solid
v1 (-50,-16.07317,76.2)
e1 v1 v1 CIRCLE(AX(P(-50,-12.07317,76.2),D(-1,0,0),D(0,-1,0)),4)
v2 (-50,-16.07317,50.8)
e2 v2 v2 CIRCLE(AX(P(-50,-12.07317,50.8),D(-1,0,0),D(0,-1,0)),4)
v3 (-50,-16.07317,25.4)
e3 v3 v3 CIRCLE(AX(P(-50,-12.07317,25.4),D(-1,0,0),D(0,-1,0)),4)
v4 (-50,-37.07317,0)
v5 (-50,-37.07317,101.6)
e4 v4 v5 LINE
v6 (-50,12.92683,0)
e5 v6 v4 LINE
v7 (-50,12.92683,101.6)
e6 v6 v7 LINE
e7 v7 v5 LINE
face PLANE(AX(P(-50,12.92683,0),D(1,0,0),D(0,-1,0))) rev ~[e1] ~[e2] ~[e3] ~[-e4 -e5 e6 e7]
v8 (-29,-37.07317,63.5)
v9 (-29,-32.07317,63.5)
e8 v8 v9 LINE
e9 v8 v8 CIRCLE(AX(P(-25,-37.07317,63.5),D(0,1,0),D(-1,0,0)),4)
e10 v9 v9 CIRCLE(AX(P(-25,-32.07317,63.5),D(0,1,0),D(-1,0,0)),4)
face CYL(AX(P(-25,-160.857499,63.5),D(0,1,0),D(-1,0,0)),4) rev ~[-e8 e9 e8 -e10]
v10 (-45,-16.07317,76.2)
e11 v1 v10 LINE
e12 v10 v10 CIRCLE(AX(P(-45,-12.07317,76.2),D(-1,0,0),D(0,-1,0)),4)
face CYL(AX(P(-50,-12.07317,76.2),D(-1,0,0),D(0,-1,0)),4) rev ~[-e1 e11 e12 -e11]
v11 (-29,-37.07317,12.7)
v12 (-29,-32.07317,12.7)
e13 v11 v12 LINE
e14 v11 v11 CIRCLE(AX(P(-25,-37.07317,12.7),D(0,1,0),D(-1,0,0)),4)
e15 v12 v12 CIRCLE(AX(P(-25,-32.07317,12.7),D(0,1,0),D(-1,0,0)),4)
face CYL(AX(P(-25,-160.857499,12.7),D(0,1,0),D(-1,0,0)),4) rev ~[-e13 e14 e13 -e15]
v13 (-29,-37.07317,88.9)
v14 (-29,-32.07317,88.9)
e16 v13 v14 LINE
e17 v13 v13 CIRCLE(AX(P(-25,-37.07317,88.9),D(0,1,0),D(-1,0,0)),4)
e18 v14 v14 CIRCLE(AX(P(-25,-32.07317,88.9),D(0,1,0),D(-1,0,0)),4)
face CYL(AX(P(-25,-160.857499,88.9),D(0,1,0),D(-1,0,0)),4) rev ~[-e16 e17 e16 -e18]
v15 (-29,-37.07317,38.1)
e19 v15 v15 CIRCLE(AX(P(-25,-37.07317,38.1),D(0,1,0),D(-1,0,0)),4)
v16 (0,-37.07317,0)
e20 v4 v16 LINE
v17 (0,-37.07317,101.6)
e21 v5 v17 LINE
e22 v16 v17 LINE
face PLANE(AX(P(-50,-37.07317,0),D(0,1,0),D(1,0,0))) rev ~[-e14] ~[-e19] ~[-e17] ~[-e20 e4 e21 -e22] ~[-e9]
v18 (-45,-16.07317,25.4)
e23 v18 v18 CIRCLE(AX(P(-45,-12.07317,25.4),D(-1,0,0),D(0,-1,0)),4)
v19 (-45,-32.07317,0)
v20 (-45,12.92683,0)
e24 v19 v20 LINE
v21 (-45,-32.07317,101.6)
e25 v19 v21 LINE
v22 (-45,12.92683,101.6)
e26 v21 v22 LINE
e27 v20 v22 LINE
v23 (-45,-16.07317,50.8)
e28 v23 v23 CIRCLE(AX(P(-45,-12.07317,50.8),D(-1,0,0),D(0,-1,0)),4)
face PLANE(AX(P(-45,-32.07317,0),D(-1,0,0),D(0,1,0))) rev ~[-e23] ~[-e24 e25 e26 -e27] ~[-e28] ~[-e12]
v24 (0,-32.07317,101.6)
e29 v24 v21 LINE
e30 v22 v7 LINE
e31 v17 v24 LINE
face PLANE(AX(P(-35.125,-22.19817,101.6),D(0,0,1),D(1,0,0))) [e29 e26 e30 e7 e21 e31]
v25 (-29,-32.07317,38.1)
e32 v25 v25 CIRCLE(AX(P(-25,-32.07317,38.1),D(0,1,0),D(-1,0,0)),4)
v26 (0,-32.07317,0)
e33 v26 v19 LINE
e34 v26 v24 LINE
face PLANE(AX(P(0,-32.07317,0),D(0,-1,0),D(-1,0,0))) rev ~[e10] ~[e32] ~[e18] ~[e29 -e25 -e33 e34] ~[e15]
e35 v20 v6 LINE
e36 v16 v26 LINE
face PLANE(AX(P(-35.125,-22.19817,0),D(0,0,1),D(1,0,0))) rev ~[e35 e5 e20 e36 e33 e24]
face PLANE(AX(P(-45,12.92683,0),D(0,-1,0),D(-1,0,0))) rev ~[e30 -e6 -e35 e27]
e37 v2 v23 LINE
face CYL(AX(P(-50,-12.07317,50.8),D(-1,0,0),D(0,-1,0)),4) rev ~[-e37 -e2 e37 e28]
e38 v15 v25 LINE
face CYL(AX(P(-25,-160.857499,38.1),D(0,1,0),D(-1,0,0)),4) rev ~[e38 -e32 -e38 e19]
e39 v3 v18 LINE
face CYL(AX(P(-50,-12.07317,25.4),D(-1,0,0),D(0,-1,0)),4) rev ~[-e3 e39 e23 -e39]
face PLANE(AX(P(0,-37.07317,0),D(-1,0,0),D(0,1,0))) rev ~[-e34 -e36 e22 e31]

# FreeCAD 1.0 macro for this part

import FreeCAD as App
import Part
import Sketcher
from FreeCAD import Vector
Q = App.Units.Quantity

doc = App.newDocument("Part")
body = doc.addObject("PartDesign::Body", "Body")

# Sketch on XY plane
sketch1 = body.newObject("Sketcher::SketchObject", "Sketch")
sketch1.AttachmentSupport = (doc.getObject("XY_Plane"), [""])
sketch1.MapMode = "FlatFace"
sketch1.addGeometry([
    Part.LineSegment(Vector(-45, 12.92683, 0), Vector(-50, 12.92683, 0)),  # 0
    Part.LineSegment(Vector(-50, 12.92683, 0), Vector(-50, -37.07317, 0)),  # 1
    Part.LineSegment(Vector(-50, -37.07317, 0), Vector(0, -37.07317, 0)),  # 2
    Part.LineSegment(Vector(0, -37.07317, 0), Vector(0, -32.07317, 0)),  # 3
    Part.LineSegment(Vector(0, -32.07317, 0), Vector(-45, -32.07317, 0)),  # 4
    Part.LineSegment(Vector(-45, -32.07317, 0), Vector(-45, 12.92683, 0)),  # 5
], False)
sketch1.addConstraint([
    Sketcher.Constraint("Coincident", 0, 2, 1, 1),
    Sketcher.Constraint("Coincident", 1, 2, 2, 1),
    Sketcher.Constraint("Coincident", 2, 2, 3, 1),
    Sketcher.Constraint("Coincident", 3, 2, 4, 1),
    Sketcher.Constraint("Coincident", 4, 2, 5, 1),
    Sketcher.Constraint("Coincident", 5, 2, 0, 1),
    Sketcher.Constraint("Horizontal", 0),
    Sketcher.Constraint("Vertical", 1),
    Sketcher.Constraint("Horizontal", 2),
    Sketcher.Constraint("Vertical", 3),
    Sketcher.Constraint("Horizontal", 4),
    Sketcher.Constraint("Vertical", 5),
    Sketcher.Constraint("PointOnObject", 2, 2, -2),
    Sketcher.Constraint("Equal", 2, 1),
    Sketcher.Constraint("Equal", 0, 3),
    Sketcher.Constraint("DistanceX", 0, 2, 0, 1, Q("5 mm")),
    Sketcher.Constraint("DistanceX", 2, 1, 2, 2, Q("50 mm")),
    Sketcher.Constraint("DistanceY", -1, 1, 0, 2, Q("12.92683 mm")),
])
pad1 = body.newObject("PartDesign::Pad", "Pad")
pad1.Profile = sketch1
pad1.Length = 101.6

# Sketch on YZ plane
sketch2 = body.newObject("Sketcher::SketchObject", "Sketch001")
sketch2.AttachmentSupport = (doc.getObject("YZ_Plane"), [""])
sketch2.MapMode = "FlatFace"
sketch2.AttachmentOffset = App.Placement(Vector(0, 0, -50), App.Rotation())
sketch2.addGeometry([
    Part.Circle(Vector(-12.07317, 76.2, 0), Vector(0, 0, 1), 4),
    Part.Circle(Vector(-12.07317, 50.8, 0), Vector(0, 0, 1), 4),
    Part.Circle(Vector(-12.07317, 25.4, 0), Vector(0, 0, 1), 4),
], False)
sketch2.addConstraint([
    Sketcher.Constraint("Equal", 0, 1),
    Sketcher.Constraint("Equal", 1, 2),
    Sketcher.Constraint("Vertical", 0, 3, 1, 3),
    Sketcher.Constraint("Vertical", 1, 3, 2, 3),
    Sketcher.Constraint("Diameter", 0, Q("8 mm")),
    Sketcher.Constraint("DistanceY", -1, 1, 0, 3, Q("76.2 mm")),
    Sketcher.Constraint("DistanceY", -1, 1, 1, 3, Q("50.8 mm")),
    Sketcher.Constraint("DistanceY", -1, 1, 2, 3, Q("25.4 mm")),
    Sketcher.Constraint("DistanceX", 0, 3, -1, 1, Q("12.07317 mm")),
])
pocket1 = body.newObject("PartDesign::Pocket", "Pocket")
pocket1.Profile = sketch2
pocket1.Length = 25
pocket1.Reversed = True

# Sketch on XZ plane
sketch3 = body.newObject("Sketcher::SketchObject", "Sketch002")
sketch3.AttachmentSupport = (doc.getObject("XZ_Plane"), [""])
sketch3.MapMode = "FlatFace"
sketch3.AttachmentOffset = App.Placement(Vector(0, 0, 37.07317), App.Rotation())
sketch3.addGeometry([
    Part.Circle(Vector(-25, 88.9, 0), Vector(0, 0, 1), 4),
    Part.Circle(Vector(-25, 63.5, 0), Vector(0, 0, 1), 4),
    Part.Circle(Vector(-25, 38.1, 0), Vector(0, 0, 1), 4),
    Part.Circle(Vector(-25, 12.7, 0), Vector(0, 0, 1), 4),
], False)
sketch3.addConstraint([
    Sketcher.Constraint("Equal", 0, 1),
    Sketcher.Constraint("Equal", 1, 2),
    Sketcher.Constraint("Equal", 2, 3),
    Sketcher.Constraint("Vertical", 0, 3, 1, 3),
    Sketcher.Constraint("Vertical", 1, 3, 2, 3),
    Sketcher.Constraint("Vertical", 2, 3, 3, 3),
    Sketcher.Constraint("Diameter", 0, Q("8 mm")),
    Sketcher.Constraint("DistanceX", 0, 3, -1, 1, Q("25 mm")),
    Sketcher.Constraint("DistanceY", -1, 1, 0, 3, Q("88.9 mm")),
    Sketcher.Constraint("DistanceY", -1, 1, 1, 3, Q("63.5 mm")),
    Sketcher.Constraint("DistanceY", -1, 1, 2, 3, Q("38.1 mm")),
    Sketcher.Constraint("DistanceY", -1, 1, 3, 3, Q("12.7 mm")),
])
doc.recompute()
hole = body.newObject("PartDesign::Hole", "Hole")
hole.Profile = sketch3
hole.ThreadType = "None"
hole.Diameter = 8
hole.DepthType = "ThroughAll"

doc.recompute()
